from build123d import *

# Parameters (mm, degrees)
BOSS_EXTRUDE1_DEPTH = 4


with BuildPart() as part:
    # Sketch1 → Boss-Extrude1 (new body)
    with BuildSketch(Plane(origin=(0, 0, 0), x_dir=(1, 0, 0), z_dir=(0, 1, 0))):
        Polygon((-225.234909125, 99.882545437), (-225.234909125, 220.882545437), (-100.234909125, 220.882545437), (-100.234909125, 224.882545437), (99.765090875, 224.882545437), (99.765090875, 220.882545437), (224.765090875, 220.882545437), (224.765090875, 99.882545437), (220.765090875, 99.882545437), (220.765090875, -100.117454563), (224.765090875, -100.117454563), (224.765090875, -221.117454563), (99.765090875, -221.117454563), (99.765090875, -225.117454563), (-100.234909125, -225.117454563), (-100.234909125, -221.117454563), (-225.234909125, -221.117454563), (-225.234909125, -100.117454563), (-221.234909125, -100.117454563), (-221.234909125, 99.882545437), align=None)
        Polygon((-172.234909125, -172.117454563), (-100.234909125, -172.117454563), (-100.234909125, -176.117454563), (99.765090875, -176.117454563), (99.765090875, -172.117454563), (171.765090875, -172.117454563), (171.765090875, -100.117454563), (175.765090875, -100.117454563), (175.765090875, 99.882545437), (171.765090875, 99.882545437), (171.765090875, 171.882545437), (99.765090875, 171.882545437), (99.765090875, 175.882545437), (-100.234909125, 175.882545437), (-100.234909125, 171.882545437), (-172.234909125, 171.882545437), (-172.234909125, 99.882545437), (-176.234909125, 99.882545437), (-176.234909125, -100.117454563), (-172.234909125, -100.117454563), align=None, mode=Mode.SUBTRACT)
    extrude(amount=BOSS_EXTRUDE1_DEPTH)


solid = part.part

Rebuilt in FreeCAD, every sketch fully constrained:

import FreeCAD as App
import Part
import Sketcher

doc = App.newDocument("Part")
body = doc.addObject("PartDesign::Body", "Body")

# Sketch on XZ plane
sketch1 = body.newObject("Sketcher::SketchObject", "Sketch")
sketch1.AttachmentSupport = (doc.getObject("XZ_Plane"), [""])
sketch1.MapMode = "FlatFace"
sketch1.addGeometry([
    Part.LineSegment(App.Vector(-225.2, -220.9, 0), App.Vector(-225.2, -99.9, 0)),  # 0
    Part.LineSegment(App.Vector(-225.2, -99.9, 0), App.Vector(-221.2, -99.9, 0)),  # 1
    Part.LineSegment(App.Vector(-221.2, -99.9, 0), App.Vector(-221.2, 100.1, 0)),  # 2
    Part.LineSegment(App.Vector(-221.2, 100.1, 0), App.Vector(-225.2, 100.1, 0)),  # 3
    Part.LineSegment(App.Vector(-225.2, 100.1, 0), App.Vector(-225.2, 221.1, 0)),  # 4
    Part.LineSegment(App.Vector(-225.2, 221.1, 0), App.Vector(-100.2, 221.1, 0)),  # 5
    Part.LineSegment(App.Vector(-100.2, 221.1, 0), App.Vector(-100.2, 225.1, 0)),  # 6
    Part.LineSegment(App.Vector(-100.2, 225.1, 0), App.Vector(99.8, 225.1, 0)),  # 7
    Part.LineSegment(App.Vector(99.8, 225.1, 0), App.Vector(99.8, 221.1, 0)),  # 8
    Part.LineSegment(App.Vector(99.8, 221.1, 0), App.Vector(224.8, 221.1, 0)),  # 9
    Part.LineSegment(App.Vector(224.8, 221.1, 0), App.Vector(224.8, 100.1, 0)),  # 10
    Part.LineSegment(App.Vector(224.8, 100.1, 0), App.Vector(220.8, 100.1, 0)),  # 11
    Part.LineSegment(App.Vector(220.8, 100.1, 0), App.Vector(220.8, -99.9, 0)),  # 12
    Part.LineSegment(App.Vector(220.8, -99.9, 0), App.Vector(224.8, -99.9, 0)),  # 13
    Part.LineSegment(App.Vector(224.8, -99.9, 0), App.Vector(224.8, -220.9, 0)),  # 14
    Part.LineSegment(App.Vector(224.8, -220.9, 0), App.Vector(99.8, -220.9, 0)),  # 15
    Part.LineSegment(App.Vector(99.8, -220.9, 0), App.Vector(99.8, -224.9, 0)),  # 16
    Part.LineSegment(App.Vector(99.8, -224.9, 0), App.Vector(-100.2, -224.9, 0)),  # 17
    Part.LineSegment(App.Vector(-100.2, -224.9, 0), App.Vector(-100.2, -220.9, 0)),  # 18
    Part.LineSegment(App.Vector(-100.2, -220.9, 0), App.Vector(-225.2, -220.9, 0)),  # 19
    Part.LineSegment(App.Vector(-172.2, 172.1, 0), App.Vector(-172.2, 100.1, 0)),  # 20
    Part.LineSegment(App.Vector(-172.2, 100.1, 0), App.Vector(-176.2, 100.1, 0)),  # 21
    Part.LineSegment(App.Vector(-176.2, 100.1, 0), App.Vector(-176.2, -99.9, 0)),  # 22
    Part.LineSegment(App.Vector(-176.2, -99.9, 0), App.Vector(-172.2, -99.9, 0)),  # 23
    Part.LineSegment(App.Vector(-172.2, -99.9, 0), App.Vector(-172.2, -171.9, 0)),  # 24
    Part.LineSegment(App.Vector(-172.2, -171.9, 0), App.Vector(-100.2, -171.9, 0)),  # 25
    Part.LineSegment(App.Vector(-100.2, -171.9, 0), App.Vector(-100.2, -175.9, 0)),  # 26
    Part.LineSegment(App.Vector(-100.2, -175.9, 0), App.Vector(99.8, -175.9, 0)),  # 27
    Part.LineSegment(App.Vector(99.8, -175.9, 0), App.Vector(99.8, -171.9, 0)),  # 28
    Part.LineSegment(App.Vector(99.8, -171.9, 0), App.Vector(171.8, -171.9, 0)),  # 29
    Part.LineSegment(App.Vector(171.8, -171.9, 0), App.Vector(171.8, -99.9, 0)),  # 30
    Part.LineSegment(App.Vector(171.8, -99.9, 0), App.Vector(175.8, -99.9, 0)),  # 31
    Part.LineSegment(App.Vector(175.8, -99.9, 0), App.Vector(175.8, 100.1, 0)),  # 32
    Part.LineSegment(App.Vector(175.8, 100.1, 0), App.Vector(171.8, 100.1, 0)),  # 33
    Part.LineSegment(App.Vector(171.8, 100.1, 0), App.Vector(171.8, 172.1, 0)),  # 34
    Part.LineSegment(App.Vector(171.8, 172.1, 0), App.Vector(99.8, 172.1, 0)),  # 35
    Part.LineSegment(App.Vector(99.8, 172.1, 0), App.Vector(99.8, 176.1, 0)),  # 36
    Part.LineSegment(App.Vector(99.8, 176.1, 0), App.Vector(-100.2, 176.1, 0)),  # 37
    Part.LineSegment(App.Vector(-100.2, 176.1, 0), App.Vector(-100.2, 172.1, 0)),  # 38
    Part.LineSegment(App.Vector(-100.2, 172.1, 0), App.Vector(-172.2, 172.1, 0)),  # 39
], False)
sketch1.addConstraint([
    Sketcher.Constraint("Coincident", 0, 2, 1, 1),
    Sketcher.Constraint("Coincident", 1, 2, 2, 1),
    Sketcher.Constraint("Coincident", 2, 2, 3, 1),
    Sketcher.Constraint("Coincident", 3, 2, 4, 1),
    Sketcher.Constraint("Coincident", 4, 2, 5, 1),
    Sketcher.Constraint("Coincident", 5, 2, 6, 1),
    Sketcher.Constraint("Coincident", 6, 2, 7, 1),
    Sketcher.Constraint("Coincident", 7, 2, 8, 1),
    Sketcher.Constraint("Coincident", 8, 2, 9, 1),
    Sketcher.Constraint("Coincident", 9, 2, 10, 1),
    Sketcher.Constraint("Coincident", 10, 2, 11, 1),
    Sketcher.Constraint("Coincident", 11, 2, 12, 1),
    Sketcher.Constraint("Coincident", 12, 2, 13, 1),
    Sketcher.Constraint("Coincident", 13, 2, 14, 1),
    Sketcher.Constraint("Coincident", 14, 2, 15, 1),
    Sketcher.Constraint("Coincident", 15, 2, 16, 1),
    Sketcher.Constraint("Coincident", 16, 2, 17, 1),
    Sketcher.Constraint("Coincident", 17, 2, 18, 1),
    Sketcher.Constraint("Coincident", 18, 2, 19, 1),
    Sketcher.Constraint("Coincident", 19, 2, 0, 1),
    Sketcher.Constraint("Coincident", 20, 2, 21, 1),
    Sketcher.Constraint("Coincident", 21, 2, 22, 1),
    Sketcher.Constraint("Coincident", 22, 2, 23, 1),
    Sketcher.Constraint("Coincident", 23, 2, 24, 1),
    Sketcher.Constraint("Coincident", 24, 2, 25, 1),
    Sketcher.Constraint("Coincident", 25, 2, 26, 1),
    Sketcher.Constraint("Coincident", 26, 2, 27, 1),
    Sketcher.Constraint("Coincident", 27, 2, 28, 1),
    Sketcher.Constraint("Coincident", 28, 2, 29, 1),
    Sketcher.Constraint("Coincident", 29, 2, 30, 1),
    Sketcher.Constraint("Coincident", 30, 2, 31, 1),
    Sketcher.Constraint("Coincident", 31, 2, 32, 1),
    Sketcher.Constraint("Coincident", 32, 2, 33, 1),
    Sketcher.Constraint("Coincident", 33, 2, 34, 1),
    Sketcher.Constraint("Coincident", 34, 2, 35, 1),
    Sketcher.Constraint("Coincident", 35, 2, 36, 1),
    Sketcher.Constraint("Coincident", 36, 2, 37, 1),
    Sketcher.Constraint("Coincident", 37, 2, 38, 1),
    Sketcher.Constraint("Coincident", 38, 2, 39, 1),
    Sketcher.Constraint("Coincident", 39, 2, 20, 1),
    Sketcher.Constraint("Vertical", 0),
    Sketcher.Constraint("Horizontal", 1),
    Sketcher.Constraint("Vertical", 2),
    Sketcher.Constraint("Horizontal", 3),
    Sketcher.Constraint("Vertical", 4),
    Sketcher.Constraint("Horizontal", 5),
    Sketcher.Constraint("Vertical", 6),
    Sketcher.Constraint("Horizontal", 7),
    Sketcher.Constraint("Vertical", 8),
    Sketcher.Constraint("Horizontal", 9),
    Sketcher.Constraint("Vertical", 10),
    Sketcher.Constraint("Horizontal", 11),
    Sketcher.Constraint("Vertical", 12),
    Sketcher.Constraint("Horizontal", 13),
    Sketcher.Constraint("Vertical", 14),
    Sketcher.Constraint("Horizontal", 15),
    Sketcher.Constraint("Vertical", 16),
    Sketcher.Constraint("Horizontal", 17),
    Sketcher.Constraint("Vertical", 18),
    Sketcher.Constraint("Horizontal", 19),
    Sketcher.Constraint("Vertical", 20),
    Sketcher.Constraint("Horizontal", 21),
    Sketcher.Constraint("Vertical", 22),
    Sketcher.Constraint("Horizontal", 23),
    Sketcher.Constraint("Vertical", 24),
    Sketcher.Constraint("Horizontal", 25),
    Sketcher.Constraint("Vertical", 26),
    Sketcher.Constraint("Horizontal", 27),
    Sketcher.Constraint("Vertical", 28),
    Sketcher.Constraint("Horizontal", 29),
    Sketcher.Constraint("Vertical", 30),
    Sketcher.Constraint("Horizontal", 31),
    Sketcher.Constraint("Vertical", 32),
    Sketcher.Constraint("Horizontal", 33),
    Sketcher.Constraint("Vertical", 34),
    Sketcher.Constraint("Horizontal", 35),
    Sketcher.Constraint("Vertical", 36),
    Sketcher.Constraint("Horizontal", 37),
    Sketcher.Constraint("Vertical", 38),
    Sketcher.Constraint("Horizontal", 39),
    Sketcher.Constraint("Horizontal", 5, 2, 8, 2),
    Sketcher.Constraint("Horizontal", 3, 2, 10, 2),
    Sketcher.Constraint("Horizontal", 1, 2, 12, 2),
    Sketcher.Constraint("Horizontal", 15, 2, 18, 2),
    Sketcher.Constraint("Horizontal", 11, 2, 20, 2),
    Sketcher.Constraint("Horizontal", 13, 2, 22, 2),
    Sketcher.Constraint("Horizontal", 25, 2, 28, 2),
    Sketcher.Constraint("Horizontal", 23, 2, 30, 2),
    Sketcher.Constraint("Horizontal", 21, 2, 32, 2),
    Sketcher.Constraint("Horizontal", 35, 2, 38, 2),
    Sketcher.Constraint("Vertical", 0, 2, 3, 2),
    Sketcher.Constraint("Vertical", 10, 2, 13, 2),
    Sketcher.Constraint("Vertical", 8, 2, 15, 2),
    Sketcher.Constraint("Vertical", 6, 2, 17, 2),
    Sketcher.Constraint("Vertical", 20, 2, 23, 2),
    Sketcher.Constraint("Vertical", 18, 2, 25, 2),
    Sketcher.Constraint("Vertical", 16, 2, 27, 2),
    Sketcher.Constraint("Vertical", 30, 2, 33, 2),
    Sketcher.Constraint("Vertical", 28, 2, 35, 2),
    Sketcher.Constraint("Vertical", 26, 2, 37, 2),
    Sketcher.Constraint("Equal", 5, 9),
    Sketcher.Constraint("Equal", 3, 11),
    Sketcher.Constraint("Equal", 13, 21),
    Sketcher.Constraint("Equal", 25, 29),
    Sketcher.Constraint("Equal", 23, 31),
    Sketcher.Constraint("Equal", 37, 2),
    Sketcher.Constraint("Equal", 0, 4),
    Sketcher.Constraint("Equal", 33, 6),
    Sketcher.Constraint("Equal", 8, 16),
    Sketcher.Constraint("Equal", 39, 20),
    Sketcher.Constraint("Equal", 20, 24),
    Sketcher.Constraint("Equal", 18, 26),
    Sketcher.Constraint("Equal", 28, 36),
    Sketcher.Constraint("DistanceX", 1, 1, 1, 2, 4.0),
    Sketcher.Constraint("DistanceX", 5, 1, 5, 2, 125.0),
    Sketcher.Constraint("DistanceX", 7, 1, 7, 2, 200.0),
    Sketcher.Constraint("DistanceX", 25, 1, 25, 2, 72.0),
    Sketcher.Constraint("DistanceY", 0, 1, 0, 2, 121.0),
    Sketcher.Constraint("DistanceX", 0, 2, -1, 1, 225.234909),
    Sketcher.Constraint("DistanceY", 0, 2, -1, 1, 99.882545),
])
pad1 = body.newObject("PartDesign::Pad", "Pad")
pad1.Profile = sketch1
pad1.Length = 4
pad1.Reversed = True

doc.recompute()
